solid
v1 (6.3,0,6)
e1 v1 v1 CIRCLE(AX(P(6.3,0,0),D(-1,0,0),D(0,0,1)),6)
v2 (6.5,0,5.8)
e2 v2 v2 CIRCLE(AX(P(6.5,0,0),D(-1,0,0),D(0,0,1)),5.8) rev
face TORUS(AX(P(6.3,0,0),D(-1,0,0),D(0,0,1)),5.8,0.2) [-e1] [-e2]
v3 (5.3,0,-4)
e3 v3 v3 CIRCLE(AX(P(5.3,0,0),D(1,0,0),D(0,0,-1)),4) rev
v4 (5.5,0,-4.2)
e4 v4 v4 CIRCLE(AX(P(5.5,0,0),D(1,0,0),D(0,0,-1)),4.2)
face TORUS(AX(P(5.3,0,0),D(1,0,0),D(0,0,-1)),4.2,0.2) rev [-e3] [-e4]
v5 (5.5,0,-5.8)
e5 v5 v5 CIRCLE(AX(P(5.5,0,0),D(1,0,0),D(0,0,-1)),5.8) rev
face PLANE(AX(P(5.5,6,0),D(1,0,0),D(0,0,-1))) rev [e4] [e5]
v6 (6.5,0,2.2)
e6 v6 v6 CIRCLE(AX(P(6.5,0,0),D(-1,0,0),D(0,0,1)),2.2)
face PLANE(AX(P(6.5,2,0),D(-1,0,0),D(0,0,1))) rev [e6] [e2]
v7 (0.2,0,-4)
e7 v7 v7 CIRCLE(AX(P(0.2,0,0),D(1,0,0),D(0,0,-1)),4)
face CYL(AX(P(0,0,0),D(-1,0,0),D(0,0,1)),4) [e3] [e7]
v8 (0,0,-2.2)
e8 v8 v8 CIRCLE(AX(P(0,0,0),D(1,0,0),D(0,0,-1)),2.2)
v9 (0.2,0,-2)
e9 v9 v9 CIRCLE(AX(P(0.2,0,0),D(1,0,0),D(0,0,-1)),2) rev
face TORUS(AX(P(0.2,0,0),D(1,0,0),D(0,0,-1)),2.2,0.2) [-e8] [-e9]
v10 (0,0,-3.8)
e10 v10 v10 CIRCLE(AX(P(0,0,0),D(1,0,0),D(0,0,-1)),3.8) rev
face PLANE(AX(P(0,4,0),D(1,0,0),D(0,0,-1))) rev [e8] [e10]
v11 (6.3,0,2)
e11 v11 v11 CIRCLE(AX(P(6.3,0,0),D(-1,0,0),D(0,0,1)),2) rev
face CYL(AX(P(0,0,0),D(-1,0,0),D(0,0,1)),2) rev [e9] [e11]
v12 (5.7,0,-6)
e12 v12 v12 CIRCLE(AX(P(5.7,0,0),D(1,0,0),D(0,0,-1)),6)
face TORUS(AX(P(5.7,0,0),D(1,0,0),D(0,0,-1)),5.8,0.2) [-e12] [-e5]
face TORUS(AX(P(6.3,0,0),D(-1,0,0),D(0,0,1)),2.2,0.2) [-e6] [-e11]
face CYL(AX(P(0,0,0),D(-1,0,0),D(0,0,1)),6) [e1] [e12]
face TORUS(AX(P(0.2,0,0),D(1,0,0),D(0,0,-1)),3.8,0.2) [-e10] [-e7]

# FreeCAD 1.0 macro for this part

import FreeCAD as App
import Part
import Sketcher

V = App.Vector


def edges_at(feature, points):
    """Names of the edges that pass closest to the given points."""
    edges = feature.Shape.Edges
    near = lambda p: min(range(len(edges)), key=lambda i: edges[i].distToShape(Part.Vertex(*p))[0])
    return sorted({f"Edge{near(p) + 1}" for p in points})


def add_polygon(sketch, points):
    """Adds a closed chain of lines whose ends are joined by coincident constraints."""
    first, n = sketch.GeometryCount, len(points)
    for a, b in zip(points, points[1:] + points[:1]):
        sketch.addGeometry(Part.LineSegment(App.Vector(*a, 0), App.Vector(*b, 0)), False)
    for i in range(n):
        sketch.addConstraint(Sketcher.Constraint("Coincident", first + i, 2, first + (i + 1) % n, 1))

doc = App.newDocument("Part")
params = doc.addObject("Spreadsheet::Sheet", "Params")
for row, (alias, value) in enumerate([
    ("sketch1_width", "1 mm"),
    ("sketch1_height", "4 mm"),
    ("sketch1_width2", "6.5 mm"),
    ("revolution_angle", "360 deg"),
    ("fillet_radius", "0.2 mm"),
], start=1):
    params.set(f"A{row}", alias)
    params.set(f"B{row}", "=" + value)
    params.setAlias(f"B{row}", alias)

body = doc.addObject("PartDesign::Body", "Body")

# Sketch on XY plane
sketch1 = doc.addObject("Sketcher::SketchObject", "Sketch")
body.addObject(sketch1)
sketch1.AttachmentSupport = (doc.XY_Plane, [""])
sketch1.MapMode = "FlatFace"
add_polygon(sketch1, [(0, 2), (6.5, 2), (6.5, 6), (5.5, 6), (5.5, 4), (0, 4)])  # lines 0-5
sketch1.addConstraint([
    Sketcher.Constraint("Horizontal", 0),
    Sketcher.Constraint("Vertical", 1),
    Sketcher.Constraint("Horizontal", 2),
    Sketcher.Constraint("Vertical", 3),
    Sketcher.Constraint("Horizontal", 4),
    Sketcher.Constraint("Vertical", 5),
    Sketcher.Constraint("PointOnObject", 4, 2, -2),
    Sketcher.Constraint("Equal", 3, 5),
    Sketcher.Constraint("DistanceX", 2, 2, 2, 1, 1.0),
    Sketcher.Constraint("DistanceY", 1, 1, 1, 2, 4.0),
    Sketcher.Constraint("DistanceX", 0, 1, 0, 2, 6.5),
    Sketcher.Constraint("DistanceY", -1, 1, 0, 2, 2.0),
])
sketch1.setExpression("Constraints[14]", "Params.sketch1_width")
sketch1.setExpression("Constraints[15]", "Params.sketch1_height")
sketch1.setExpression("Constraints[16]", "Params.sketch1_width2")
revolution = doc.addObject("PartDesign::Revolution", "Revolution")
body.addObject(revolution)
revolution.Profile = sketch1
revolution.ReferenceAxis = (sketch1, ["H_Axis"])
revolution.setExpression("Angle", "Params.revolution_angle")
doc.recompute()

fillet = doc.addObject("PartDesign::Fillet", "Fillet")
body.addObject(fillet)
fillet.Base = (revolution, edges_at(revolution, [
    (0, 0, 2),
    (6.5, 0, 2),
    (6.5, 0, 6),
    (5.5, 0, 6),
    (5.5, 0, 4),
    (0, 0, 4),
]))
fillet.setExpression("Radius", "Params.fillet_radius")

doc.recompute()
